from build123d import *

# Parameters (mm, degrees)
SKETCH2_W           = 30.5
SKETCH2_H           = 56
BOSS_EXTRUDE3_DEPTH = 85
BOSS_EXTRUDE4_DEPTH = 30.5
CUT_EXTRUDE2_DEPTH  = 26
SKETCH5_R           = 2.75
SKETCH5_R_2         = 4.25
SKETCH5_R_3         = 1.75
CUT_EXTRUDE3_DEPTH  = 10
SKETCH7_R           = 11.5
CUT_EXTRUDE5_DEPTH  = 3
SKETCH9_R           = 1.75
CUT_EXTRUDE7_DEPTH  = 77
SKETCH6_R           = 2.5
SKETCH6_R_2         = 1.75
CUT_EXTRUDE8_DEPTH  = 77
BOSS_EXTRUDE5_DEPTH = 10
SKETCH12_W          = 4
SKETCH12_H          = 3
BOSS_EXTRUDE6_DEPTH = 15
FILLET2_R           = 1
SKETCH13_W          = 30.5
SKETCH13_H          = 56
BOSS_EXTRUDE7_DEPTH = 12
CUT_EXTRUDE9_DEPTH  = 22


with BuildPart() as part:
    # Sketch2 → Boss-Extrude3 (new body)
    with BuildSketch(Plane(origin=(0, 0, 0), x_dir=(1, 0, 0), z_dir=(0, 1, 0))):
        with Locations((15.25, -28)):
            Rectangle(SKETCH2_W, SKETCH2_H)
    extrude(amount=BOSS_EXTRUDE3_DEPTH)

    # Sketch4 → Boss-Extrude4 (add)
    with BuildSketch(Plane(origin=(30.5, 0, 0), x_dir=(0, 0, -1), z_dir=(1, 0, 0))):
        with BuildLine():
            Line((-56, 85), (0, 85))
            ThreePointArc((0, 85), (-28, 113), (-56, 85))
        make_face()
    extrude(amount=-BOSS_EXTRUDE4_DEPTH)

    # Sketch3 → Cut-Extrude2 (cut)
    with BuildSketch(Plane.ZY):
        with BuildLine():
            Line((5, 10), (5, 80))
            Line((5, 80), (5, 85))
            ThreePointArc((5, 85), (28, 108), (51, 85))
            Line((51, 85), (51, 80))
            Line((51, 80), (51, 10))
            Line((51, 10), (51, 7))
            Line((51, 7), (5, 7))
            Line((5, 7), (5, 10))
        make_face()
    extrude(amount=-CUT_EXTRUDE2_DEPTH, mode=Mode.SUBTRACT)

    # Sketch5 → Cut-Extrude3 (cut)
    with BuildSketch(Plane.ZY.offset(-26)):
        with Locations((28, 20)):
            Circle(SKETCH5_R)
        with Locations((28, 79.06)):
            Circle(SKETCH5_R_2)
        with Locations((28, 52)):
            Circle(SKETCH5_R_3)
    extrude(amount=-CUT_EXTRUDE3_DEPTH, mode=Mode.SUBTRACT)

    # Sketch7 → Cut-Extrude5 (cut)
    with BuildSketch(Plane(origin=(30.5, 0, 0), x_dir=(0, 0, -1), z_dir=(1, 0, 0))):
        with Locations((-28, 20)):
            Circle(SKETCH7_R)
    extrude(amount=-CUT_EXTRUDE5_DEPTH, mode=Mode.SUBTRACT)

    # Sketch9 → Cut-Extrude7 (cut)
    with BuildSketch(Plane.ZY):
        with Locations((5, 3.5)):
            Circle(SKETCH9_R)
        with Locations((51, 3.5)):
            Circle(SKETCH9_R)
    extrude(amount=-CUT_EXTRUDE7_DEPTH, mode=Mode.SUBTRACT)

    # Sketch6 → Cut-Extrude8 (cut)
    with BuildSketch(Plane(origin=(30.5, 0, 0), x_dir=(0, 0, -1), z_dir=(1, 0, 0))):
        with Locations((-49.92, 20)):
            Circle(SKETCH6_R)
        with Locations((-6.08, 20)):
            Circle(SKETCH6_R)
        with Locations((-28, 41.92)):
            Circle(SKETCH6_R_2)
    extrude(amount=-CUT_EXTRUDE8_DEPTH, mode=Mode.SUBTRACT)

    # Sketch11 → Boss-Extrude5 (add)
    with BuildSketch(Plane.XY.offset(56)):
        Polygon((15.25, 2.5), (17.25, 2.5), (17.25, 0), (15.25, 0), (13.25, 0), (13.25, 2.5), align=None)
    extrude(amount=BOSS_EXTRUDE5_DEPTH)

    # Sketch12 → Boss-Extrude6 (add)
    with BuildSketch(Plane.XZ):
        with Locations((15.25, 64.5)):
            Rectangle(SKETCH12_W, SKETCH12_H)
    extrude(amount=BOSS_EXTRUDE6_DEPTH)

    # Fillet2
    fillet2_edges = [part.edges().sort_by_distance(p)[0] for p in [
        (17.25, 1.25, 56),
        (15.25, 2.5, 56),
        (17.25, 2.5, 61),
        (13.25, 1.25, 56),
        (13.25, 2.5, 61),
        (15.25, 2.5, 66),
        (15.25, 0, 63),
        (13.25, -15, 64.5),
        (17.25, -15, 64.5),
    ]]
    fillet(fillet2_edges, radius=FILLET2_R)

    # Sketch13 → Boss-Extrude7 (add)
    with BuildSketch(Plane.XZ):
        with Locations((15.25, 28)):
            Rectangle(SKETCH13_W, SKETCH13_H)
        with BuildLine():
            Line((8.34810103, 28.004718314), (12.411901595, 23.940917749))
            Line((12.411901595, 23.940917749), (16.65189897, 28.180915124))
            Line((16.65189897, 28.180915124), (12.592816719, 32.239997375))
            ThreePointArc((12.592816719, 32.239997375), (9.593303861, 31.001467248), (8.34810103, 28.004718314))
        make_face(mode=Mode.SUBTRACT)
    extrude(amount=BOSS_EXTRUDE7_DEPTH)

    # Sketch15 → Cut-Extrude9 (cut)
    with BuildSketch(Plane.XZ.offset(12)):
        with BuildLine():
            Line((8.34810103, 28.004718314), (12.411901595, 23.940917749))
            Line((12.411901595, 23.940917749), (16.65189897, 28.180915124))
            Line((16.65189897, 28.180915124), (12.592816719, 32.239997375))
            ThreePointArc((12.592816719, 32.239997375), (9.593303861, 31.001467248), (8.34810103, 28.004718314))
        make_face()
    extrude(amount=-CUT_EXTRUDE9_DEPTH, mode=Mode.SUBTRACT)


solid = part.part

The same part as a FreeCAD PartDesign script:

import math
import FreeCAD as App
import Part
import Sketcher

V = App.Vector
Q = App.Units.Quantity


def edges_at(feature, points):
    """Names of the edges that pass closest to the given points."""
    edges = feature.Shape.Edges
    near = lambda p: min(range(len(edges)), key=lambda i: edges[i].distToShape(Part.Vertex(*p))[0])
    return sorted({f"Edge{near(p) + 1}" for p in points})

doc = App.newDocument("Part")
body = doc.addObject("PartDesign::Body", "Body")

sketch1 = body.newObject("Sketcher::SketchObject", "Sketch")
sketch1.AttachmentSupport = (doc.getObject("XZ_Plane"), [""])
sketch1.MapMode = "FlatFace"
sketch1.addGeometry([
    Part.LineSegment(V(0, 0, 0), V(0, 56, 0)),
    Part.LineSegment(V(0, 56, 0), V(30, 56, 0)),
    Part.LineSegment(V(30, 56, 0), V(30, 0, 0)),
    Part.LineSegment(V(30, 0, 0), V(0, 0, 0)),
], False)
sketch1.addConstraint([
    Sketcher.Constraint("Coincident", 0, 2, 1, 1),
    Sketcher.Constraint("Coincident", 1, 2, 2, 1),
    Sketcher.Constraint("Coincident", 2, 2, 3, 1),
    Sketcher.Constraint("Coincident", 3, 2, 0, 1),
    Sketcher.Constraint("Vertical", 0),
    Sketcher.Constraint("Horizontal", 1),
    Sketcher.Constraint("Vertical", 2),
    Sketcher.Constraint("Horizontal", 3),
    Sketcher.Constraint("Coincident", 3, 2, -1, 1),
    Sketcher.Constraint("DistanceY", 0, 1, 0, 2, Q("56 mm")),
    Sketcher.Constraint("DistanceX", 1, 1, 1, 2, Q("30.5 mm")),
])
pad1 = body.newObject("PartDesign::Pad", "Pad")
pad1.Profile = sketch1
pad1.Length = 85
pad1.Reversed = True

sketch2 = body.newObject("Sketcher::SketchObject", "Sketch001")
sketch2.AttachmentSupport = (doc.getObject("YZ_Plane"), [""])
sketch2.MapMode = "FlatFace"
sketch2.AttachmentOffset = App.Placement(V(0, 0, 30.5), App.Rotation())
sketch2.addGeometry([
    Part.LineSegment(V(85, 56, 0), V(85, 0, 0)),
    Part.ArcOfCircle(Part.Circle(V(85, 28, 0), V(0, 0, 1), 28), math.radians(-90), math.radians(90)),
], False)
sketch2.addConstraint([
    Sketcher.Constraint("Coincident", 0, 1, 1, 2),
    Sketcher.Constraint("Coincident", 1, 1, 0, 2),
    Sketcher.Constraint("Vertical", 0),
    Sketcher.Constraint("PointOnObject", 1, 1, -1),
    Sketcher.Constraint("Vertical", 1, 3, 0, 1),
    Sketcher.Constraint("Radius", 1, Q("28 mm")),
    Sketcher.Constraint("DistanceX", -1, 1, 1, 3, Q("85 mm")),
])
pad2 = body.newObject("PartDesign::Pad", "Pad001")
pad2.Profile = sketch2
pad2.Length = 30.5
pad2.Reversed = True

sketch3 = body.newObject("Sketcher::SketchObject", "Sketch002")
sketch3.AttachmentSupport = (doc.getObject("YZ_Plane"), [""])
sketch3.MapMode = "FlatFace"
sketch3.addGeometry([
    Part.ArcOfCircle(Part.Circle(V(85, 28, 0), V(0, 0, 1), 23), math.radians(-90), math.radians(90)),
    Part.LineSegment(V(85, 5, 0), V(7, 5, 0)),
    Part.LineSegment(V(7, 5, 0), V(7, 51, 0)),
    Part.LineSegment(V(7, 51, 0), V(85, 51, 0)),
], False)
sketch3.addConstraint([
    Sketcher.Constraint("Tangent", 0, 1, 1, 1),
    Sketcher.Constraint("Coincident", 1, 2, 2, 1),
    Sketcher.Constraint("Coincident", 2, 2, 3, 1),
    Sketcher.Constraint("Tangent", 3, 2, 0, 2),
    Sketcher.Constraint("Horizontal", 1),
    Sketcher.Constraint("Vertical", 2),
    Sketcher.Constraint("Horizontal", 3),
    Sketcher.Constraint("Radius", 0, Q("23 mm")),
    Sketcher.Constraint("DistanceX", 1, 2, 1, 1, Q("78 mm")),
    Sketcher.Constraint("DistanceX", -1, 1, 0, 3, Q("85 mm")),
    Sketcher.Constraint("DistanceY", -1, 1, 0, 3, Q("28 mm")),
])
pocket1 = body.newObject("PartDesign::Pocket", "Pocket")
pocket1.Profile = sketch3
pocket1.Length = 26
pocket1.Reversed = True

sketch4 = body.newObject("Sketcher::SketchObject", "Sketch003")
sketch4.AttachmentSupport = (doc.getObject("YZ_Plane"), [""])
sketch4.MapMode = "FlatFace"
sketch4.AttachmentOffset = App.Placement(V(0, 0, 26), App.Rotation())
sketch4.addGeometry([
    Part.Circle(V(20, 28, 0), V(0, 0, 1), 2.8),
    Part.Circle(V(79.1, 28, 0), V(0, 0, 1), 4.2),
    Part.Circle(V(52, 28, 0), V(0, 0, 1), 1.8),
], False)
sketch4.addConstraint([
    Sketcher.Constraint("Horizontal", 0, 3, 1, 3),
    Sketcher.Constraint("Horizontal", 1, 3, 2, 3),
    Sketcher.Constraint("Diameter", 0, Q("5.5 mm")),
    Sketcher.Constraint("Diameter", 1, Q("8.5 mm")),
    Sketcher.Constraint("Diameter", 2, Q("3.5 mm")),
    Sketcher.Constraint("DistanceX", -1, 1, 0, 3, Q("20 mm")),
    Sketcher.Constraint("DistanceY", -1, 1, 0, 3, Q("28 mm")),
    Sketcher.Constraint("DistanceX", -1, 1, 2, 3, Q("52 mm")),
    Sketcher.Constraint("DistanceX", -1, 1, 1, 3, Q("79.06 mm")),
])
pocket2 = body.newObject("PartDesign::Pocket", "Pocket001")
pocket2.Profile = sketch4
pocket2.Length = 10
pocket2.Reversed = True

sketch5 = body.newObject("Sketcher::SketchObject", "Sketch004")
sketch5.AttachmentSupport = (doc.getObject("YZ_Plane"), [""])
sketch5.MapMode = "FlatFace"
sketch5.AttachmentOffset = App.Placement(V(0, 0, 30.5), App.Rotation())
sketch5.addGeometry(Part.Circle(V(20, 28, 0), V(0, 0, 1), 12), False)
sketch5.addConstraint([
    Sketcher.Constraint("Diameter", 0, Q("23 mm")),
    Sketcher.Constraint("DistanceX", -1, 1, 0, 3, Q("20 mm")),
    Sketcher.Constraint("DistanceY", -1, 1, 0, 3, Q("28 mm")),
])
pocket3 = body.newObject("PartDesign::Pocket", "Pocket002")
pocket3.Profile = sketch5
pocket3.Length = 3

sketch6 = body.newObject("Sketcher::SketchObject", "Sketch005")
sketch6.AttachmentSupport = (doc.getObject("YZ_Plane"), [""])
sketch6.MapMode = "FlatFace"
sketch6.addGeometry([
    Part.Circle(V(3.5, 5, 0), V(0, 0, 1), 1.8),
    Part.Circle(V(3.5, 51, 0), V(0, 0, 1), 1.8),
], False)
sketch6.addConstraint([
    Sketcher.Constraint("Equal", 0, 1),
    Sketcher.Constraint("Vertical", 0, 3, 1, 3),
    Sketcher.Constraint("Diameter", 0, Q("3.5 mm")),
    Sketcher.Constraint("DistanceY", -1, 1, 0, 3, Q("5 mm")),
    Sketcher.Constraint("DistanceY", -1, 1, 1, 3, Q("51 mm")),
    Sketcher.Constraint("DistanceX", -1, 1, 0, 3, Q("3.5 mm")),
])
pocket4 = body.newObject("PartDesign::Pocket", "Pocket003")
pocket4.Profile = sketch6
pocket4.Length = 77
pocket4.Reversed = True

sketch7 = body.newObject("Sketcher::SketchObject", "Sketch006")
sketch7.AttachmentSupport = (doc.getObject("YZ_Plane"), [""])
sketch7.MapMode = "FlatFace"
sketch7.AttachmentOffset = App.Placement(V(0, 0, 30.5), App.Rotation())
sketch7.addGeometry([
    Part.Circle(V(20, 49.9, 0), V(0, 0, 1), 2.5),
    Part.Circle(V(20, 6.1, 0), V(0, 0, 1), 2.5),
    Part.Circle(V(41.9, 28, 0), V(0, 0, 1), 1.8),
], False)
sketch7.addConstraint([
    Sketcher.Constraint("Equal", 0, 1),
    Sketcher.Constraint("Vertical", 0, 3, 1, 3),
    Sketcher.Constraint("Diameter", 0, Q("5 mm")),
    Sketcher.Constraint("Diameter", 2, Q("3.5 mm")),
    Sketcher.Constraint("DistanceX", -1, 1, 0, 3, Q("20 mm")),
    Sketcher.Constraint("DistanceY", -1, 1, 2, 3, Q("28 mm")),
    Sketcher.Constraint("DistanceY", -1, 1, 0, 3, Q("49.92 mm")),
    Sketcher.Constraint("DistanceY", -1, 1, 1, 3, Q("6.08 mm")),
    Sketcher.Constraint("DistanceX", -1, 1, 2, 3, Q("41.92 mm")),
])
pocket5 = body.newObject("PartDesign::Pocket", "Pocket004")
pocket5.Profile = sketch7
pocket5.Length = 77

sketch8 = body.newObject("Sketcher::SketchObject", "Sketch007")
sketch8.AttachmentSupport = (doc.getObject("XY_Plane"), [""])
sketch8.MapMode = "FlatFace"
sketch8.AttachmentOffset = App.Placement(V(0, 0, 56), App.Rotation())
sketch8.addGeometry([
    Part.LineSegment(V(17.2, 2.5, 0), V(13.2, 2.5, 0)),
    Part.LineSegment(V(13.2, 2.5, 0), V(13.2, 0, 0)),
    Part.LineSegment(V(13.2, 0, 0), V(17.2, 0, 0)),
    Part.LineSegment(V(17.2, 0, 0), V(17.2, 2.5, 0)),
], False)
sketch8.addConstraint([
    Sketcher.Constraint("Coincident", 0, 2, 1, 1),
    Sketcher.Constraint("Coincident", 1, 2, 2, 1),
    Sketcher.Constraint("Coincident", 2, 2, 3, 1),
    Sketcher.Constraint("Coincident", 3, 2, 0, 1),
    Sketcher.Constraint("Horizontal", 0),
    Sketcher.Constraint("Vertical", 1),
    Sketcher.Constraint("Horizontal", 2),
    Sketcher.Constraint("Vertical", 3),
    Sketcher.Constraint("PointOnObject", 1, 2, -1),
    Sketcher.Constraint("DistanceX", 0, 2, 0, 1, Q("4 mm")),
    Sketcher.Constraint("DistanceY", 1, 2, 1, 1, Q("2.5 mm")),
    Sketcher.Constraint("DistanceX", -1, 1, 0, 2, Q("13.25 mm")),
])
pad3 = body.newObject("PartDesign::Pad", "Pad002")
pad3.Profile = sketch8
pad3.Length = 10

sketch9 = body.newObject("Sketcher::SketchObject", "Sketch008")
sketch9.AttachmentSupport = (doc.getObject("XZ_Plane"), [""])
sketch9.MapMode = "FlatFace"
sketch9.addGeometry([
    Part.LineSegment(V(13.2, 66, 0), V(13.2, 63, 0)),
    Part.LineSegment(V(13.2, 63, 0), V(17.2, 63, 0)),
    Part.LineSegment(V(17.2, 63, 0), V(17.2, 66, 0)),
    Part.LineSegment(V(17.2, 66, 0), V(13.2, 66, 0)),
], False)
sketch9.addConstraint([
    Sketcher.Constraint("Coincident", 0, 2, 1, 1),
    Sketcher.Constraint("Coincident", 1, 2, 2, 1),
    Sketcher.Constraint("Coincident", 2, 2, 3, 1),
    Sketcher.Constraint("Coincident", 3, 2, 0, 1),
    Sketcher.Constraint("Vertical", 0),
    Sketcher.Constraint("Horizontal", 1),
    Sketcher.Constraint("Vertical", 2),
    Sketcher.Constraint("Horizontal", 3),
    Sketcher.Constraint("DistanceX", 1, 1, 1, 2, Q("4 mm")),
    Sketcher.Constraint("DistanceY", 0, 2, 0, 1, Q("3 mm")),
    Sketcher.Constraint("DistanceY", -1, 1, 0, 2, Q("63 mm")),
    Sketcher.Constraint("DistanceX", -1, 1, 0, 2, Q("13.25 mm")),
])
pad4 = body.newObject("PartDesign::Pad", "Pad003")
pad4.Profile = sketch9
pad4.Length = 15
doc.recompute()

fillet = body.newObject("PartDesign::Fillet", "Fillet")
fillet.Base = (pad4, edges_at(pad4, [
    (17.25, 1.25, 56),
    (15.25, 2.5, 56),
    (17.25, 2.5, 61),
    (13.25, 1.25, 56),
    (13.25, 2.5, 61),
    (15.25, 2.5, 66),
    (15.25, 0, 63),
    (13.25, -15, 64.5),
    (17.25, -15, 64.5),
]))
fillet.Radius = 1

sketch10 = body.newObject("Sketcher::SketchObject", "Sketch009")
sketch10.AttachmentSupport = (doc.getObject("XZ_Plane"), [""])
sketch10.MapMode = "FlatFace"
sketch10.addGeometry([
    Part.LineSegment(V(0, 56, 0), V(0, 0, 0)),
    Part.LineSegment(V(0, 0, 0), V(30.5, 0, 0)),
    Part.LineSegment(V(30.5, 0, 0), V(30.5, 56, 0)),
    Part.LineSegment(V(30.5, 56, 0), V(0, 56, 0)),
    Part.LineSegment(V(12.4, 23.9, 0), V(8.3, 28, 0)),
    Part.ArcOfCircle(Part.Circle(V(12.6, 28, 0), V(0, 0, 1), 4.2), math.radians(90), math.radians(180)),
    Part.LineSegment(V(12.6, 32.2, 0), V(16.7, 28.2, 0)),
    Part.LineSegment(V(16.7, 28.2, 0), V(12.4, 23.9, 0)),
], False)
sketch10.addConstraint([
    Sketcher.Constraint("Coincident", 0, 2, 1, 1),
    Sketcher.Constraint("Coincident", 1, 2, 2, 1),
    Sketcher.Constraint("Coincident", 2, 2, 3, 1),
    Sketcher.Constraint("Coincident", 3, 2, 0, 1),
    Sketcher.Constraint("Coincident", 4, 2, 5, 2),
    Sketcher.Constraint("Coincident", 5, 1, 6, 1),
    Sketcher.Constraint("Coincident", 6, 2, 7, 1),
    Sketcher.Constraint("Coincident", 7, 2, 4, 1),
    Sketcher.Constraint("Vertical", 0),
    Sketcher.Constraint("Horizontal", 1),
    Sketcher.Constraint("Vertical", 2),
    Sketcher.Constraint("Horizontal", 3),
    Sketcher.Constraint("Coincident", 0, 2, -1, 1),
    Sketcher.Constraint("Parallel", 4, 6),
    Sketcher.Constraint("Perpendicular", 6, 7),
    Sketcher.Constraint("DistanceY", 0, 2, 0, 1, Q("56 mm")),
    Sketcher.Constraint("Angle", 4, Q("135 deg")),
    Sketcher.Constraint("Radius", 5, Q("4.24 mm")),
    Sketcher.Constraint("DistanceX", 1, 1, 1, 2, Q("30.5 mm")),
    Sketcher.Constraint("DistanceY", -1, 1, 5, 3, Q("28 mm")),
    Sketcher.Constraint("DistanceX", -1, 1, 5, 3, Q("12.588098 mm")),
    Sketcher.Constraint("DistanceX", -1, 1, 6, 2, Q("16.651899 mm")),
    Sketcher.Constraint("DistanceX", -1, 1, 7, 2, Q("12.411902 mm")),
    Sketcher.Constraint("Distance", 6, Q("5.740409 mm")),
])
pad5 = body.newObject("PartDesign::Pad", "Pad004")
pad5.Profile = sketch10
pad5.Length = 12

sketch11 = body.newObject("Sketcher::SketchObject", "Sketch010")
sketch11.AttachmentSupport = (doc.getObject("XZ_Plane"), [""])
sketch11.MapMode = "FlatFace"
sketch11.AttachmentOffset = App.Placement(V(0, 0, 12), App.Rotation())
sketch11.addGeometry([
    Part.LineSegment(V(8.3, 28, 0), V(12.4, 23.9, 0)),
    Part.LineSegment(V(12.4, 23.9, 0), V(16.7, 28.2, 0)),
    Part.LineSegment(V(16.7, 28.2, 0), V(12.6, 32.2, 0)),
    Part.ArcOfCircle(Part.Circle(V(12.6, 28, 0), V(0, 0, 1), 4.2), math.radians(90), math.radians(180)),
], False)
sketch11.addConstraint([
    Sketcher.Constraint("Coincident", 0, 2, 1, 1),
    Sketcher.Constraint("Coincident", 1, 2, 2, 1),
    Sketcher.Constraint("Coincident", 2, 2, 3, 1),
    Sketcher.Constraint("Coincident", 3, 2, 0, 1),
    Sketcher.Constraint("Perpendicular", 0, 1),
    Sketcher.Constraint("Perpendicular", 1, 2),
    Sketcher.Constraint("Angle", 0, Q("-45 deg")),
    Sketcher.Constraint("Radius", 3, Q("4.24 mm")),
    Sketcher.Constraint("DistanceY", -1, 1, 3, 3, Q("28 mm")),
    Sketcher.Constraint("DistanceX", -1, 1, 3, 3, Q("12.588098 mm")),
    Sketcher.Constraint("DistanceX", -1, 1, 0, 2, Q("12.411902 mm")),
    Sketcher.Constraint("DistanceX", -1, 1, 1, 2, Q("16.651899 mm")),
    Sketcher.Constraint("Distance", 2, Q("5.740409 mm")),
])
pocket6 = body.newObject("PartDesign::Pocket", "Pocket005")
pocket6.Profile = sketch11
pocket6.Length = 22

doc.recompute()
